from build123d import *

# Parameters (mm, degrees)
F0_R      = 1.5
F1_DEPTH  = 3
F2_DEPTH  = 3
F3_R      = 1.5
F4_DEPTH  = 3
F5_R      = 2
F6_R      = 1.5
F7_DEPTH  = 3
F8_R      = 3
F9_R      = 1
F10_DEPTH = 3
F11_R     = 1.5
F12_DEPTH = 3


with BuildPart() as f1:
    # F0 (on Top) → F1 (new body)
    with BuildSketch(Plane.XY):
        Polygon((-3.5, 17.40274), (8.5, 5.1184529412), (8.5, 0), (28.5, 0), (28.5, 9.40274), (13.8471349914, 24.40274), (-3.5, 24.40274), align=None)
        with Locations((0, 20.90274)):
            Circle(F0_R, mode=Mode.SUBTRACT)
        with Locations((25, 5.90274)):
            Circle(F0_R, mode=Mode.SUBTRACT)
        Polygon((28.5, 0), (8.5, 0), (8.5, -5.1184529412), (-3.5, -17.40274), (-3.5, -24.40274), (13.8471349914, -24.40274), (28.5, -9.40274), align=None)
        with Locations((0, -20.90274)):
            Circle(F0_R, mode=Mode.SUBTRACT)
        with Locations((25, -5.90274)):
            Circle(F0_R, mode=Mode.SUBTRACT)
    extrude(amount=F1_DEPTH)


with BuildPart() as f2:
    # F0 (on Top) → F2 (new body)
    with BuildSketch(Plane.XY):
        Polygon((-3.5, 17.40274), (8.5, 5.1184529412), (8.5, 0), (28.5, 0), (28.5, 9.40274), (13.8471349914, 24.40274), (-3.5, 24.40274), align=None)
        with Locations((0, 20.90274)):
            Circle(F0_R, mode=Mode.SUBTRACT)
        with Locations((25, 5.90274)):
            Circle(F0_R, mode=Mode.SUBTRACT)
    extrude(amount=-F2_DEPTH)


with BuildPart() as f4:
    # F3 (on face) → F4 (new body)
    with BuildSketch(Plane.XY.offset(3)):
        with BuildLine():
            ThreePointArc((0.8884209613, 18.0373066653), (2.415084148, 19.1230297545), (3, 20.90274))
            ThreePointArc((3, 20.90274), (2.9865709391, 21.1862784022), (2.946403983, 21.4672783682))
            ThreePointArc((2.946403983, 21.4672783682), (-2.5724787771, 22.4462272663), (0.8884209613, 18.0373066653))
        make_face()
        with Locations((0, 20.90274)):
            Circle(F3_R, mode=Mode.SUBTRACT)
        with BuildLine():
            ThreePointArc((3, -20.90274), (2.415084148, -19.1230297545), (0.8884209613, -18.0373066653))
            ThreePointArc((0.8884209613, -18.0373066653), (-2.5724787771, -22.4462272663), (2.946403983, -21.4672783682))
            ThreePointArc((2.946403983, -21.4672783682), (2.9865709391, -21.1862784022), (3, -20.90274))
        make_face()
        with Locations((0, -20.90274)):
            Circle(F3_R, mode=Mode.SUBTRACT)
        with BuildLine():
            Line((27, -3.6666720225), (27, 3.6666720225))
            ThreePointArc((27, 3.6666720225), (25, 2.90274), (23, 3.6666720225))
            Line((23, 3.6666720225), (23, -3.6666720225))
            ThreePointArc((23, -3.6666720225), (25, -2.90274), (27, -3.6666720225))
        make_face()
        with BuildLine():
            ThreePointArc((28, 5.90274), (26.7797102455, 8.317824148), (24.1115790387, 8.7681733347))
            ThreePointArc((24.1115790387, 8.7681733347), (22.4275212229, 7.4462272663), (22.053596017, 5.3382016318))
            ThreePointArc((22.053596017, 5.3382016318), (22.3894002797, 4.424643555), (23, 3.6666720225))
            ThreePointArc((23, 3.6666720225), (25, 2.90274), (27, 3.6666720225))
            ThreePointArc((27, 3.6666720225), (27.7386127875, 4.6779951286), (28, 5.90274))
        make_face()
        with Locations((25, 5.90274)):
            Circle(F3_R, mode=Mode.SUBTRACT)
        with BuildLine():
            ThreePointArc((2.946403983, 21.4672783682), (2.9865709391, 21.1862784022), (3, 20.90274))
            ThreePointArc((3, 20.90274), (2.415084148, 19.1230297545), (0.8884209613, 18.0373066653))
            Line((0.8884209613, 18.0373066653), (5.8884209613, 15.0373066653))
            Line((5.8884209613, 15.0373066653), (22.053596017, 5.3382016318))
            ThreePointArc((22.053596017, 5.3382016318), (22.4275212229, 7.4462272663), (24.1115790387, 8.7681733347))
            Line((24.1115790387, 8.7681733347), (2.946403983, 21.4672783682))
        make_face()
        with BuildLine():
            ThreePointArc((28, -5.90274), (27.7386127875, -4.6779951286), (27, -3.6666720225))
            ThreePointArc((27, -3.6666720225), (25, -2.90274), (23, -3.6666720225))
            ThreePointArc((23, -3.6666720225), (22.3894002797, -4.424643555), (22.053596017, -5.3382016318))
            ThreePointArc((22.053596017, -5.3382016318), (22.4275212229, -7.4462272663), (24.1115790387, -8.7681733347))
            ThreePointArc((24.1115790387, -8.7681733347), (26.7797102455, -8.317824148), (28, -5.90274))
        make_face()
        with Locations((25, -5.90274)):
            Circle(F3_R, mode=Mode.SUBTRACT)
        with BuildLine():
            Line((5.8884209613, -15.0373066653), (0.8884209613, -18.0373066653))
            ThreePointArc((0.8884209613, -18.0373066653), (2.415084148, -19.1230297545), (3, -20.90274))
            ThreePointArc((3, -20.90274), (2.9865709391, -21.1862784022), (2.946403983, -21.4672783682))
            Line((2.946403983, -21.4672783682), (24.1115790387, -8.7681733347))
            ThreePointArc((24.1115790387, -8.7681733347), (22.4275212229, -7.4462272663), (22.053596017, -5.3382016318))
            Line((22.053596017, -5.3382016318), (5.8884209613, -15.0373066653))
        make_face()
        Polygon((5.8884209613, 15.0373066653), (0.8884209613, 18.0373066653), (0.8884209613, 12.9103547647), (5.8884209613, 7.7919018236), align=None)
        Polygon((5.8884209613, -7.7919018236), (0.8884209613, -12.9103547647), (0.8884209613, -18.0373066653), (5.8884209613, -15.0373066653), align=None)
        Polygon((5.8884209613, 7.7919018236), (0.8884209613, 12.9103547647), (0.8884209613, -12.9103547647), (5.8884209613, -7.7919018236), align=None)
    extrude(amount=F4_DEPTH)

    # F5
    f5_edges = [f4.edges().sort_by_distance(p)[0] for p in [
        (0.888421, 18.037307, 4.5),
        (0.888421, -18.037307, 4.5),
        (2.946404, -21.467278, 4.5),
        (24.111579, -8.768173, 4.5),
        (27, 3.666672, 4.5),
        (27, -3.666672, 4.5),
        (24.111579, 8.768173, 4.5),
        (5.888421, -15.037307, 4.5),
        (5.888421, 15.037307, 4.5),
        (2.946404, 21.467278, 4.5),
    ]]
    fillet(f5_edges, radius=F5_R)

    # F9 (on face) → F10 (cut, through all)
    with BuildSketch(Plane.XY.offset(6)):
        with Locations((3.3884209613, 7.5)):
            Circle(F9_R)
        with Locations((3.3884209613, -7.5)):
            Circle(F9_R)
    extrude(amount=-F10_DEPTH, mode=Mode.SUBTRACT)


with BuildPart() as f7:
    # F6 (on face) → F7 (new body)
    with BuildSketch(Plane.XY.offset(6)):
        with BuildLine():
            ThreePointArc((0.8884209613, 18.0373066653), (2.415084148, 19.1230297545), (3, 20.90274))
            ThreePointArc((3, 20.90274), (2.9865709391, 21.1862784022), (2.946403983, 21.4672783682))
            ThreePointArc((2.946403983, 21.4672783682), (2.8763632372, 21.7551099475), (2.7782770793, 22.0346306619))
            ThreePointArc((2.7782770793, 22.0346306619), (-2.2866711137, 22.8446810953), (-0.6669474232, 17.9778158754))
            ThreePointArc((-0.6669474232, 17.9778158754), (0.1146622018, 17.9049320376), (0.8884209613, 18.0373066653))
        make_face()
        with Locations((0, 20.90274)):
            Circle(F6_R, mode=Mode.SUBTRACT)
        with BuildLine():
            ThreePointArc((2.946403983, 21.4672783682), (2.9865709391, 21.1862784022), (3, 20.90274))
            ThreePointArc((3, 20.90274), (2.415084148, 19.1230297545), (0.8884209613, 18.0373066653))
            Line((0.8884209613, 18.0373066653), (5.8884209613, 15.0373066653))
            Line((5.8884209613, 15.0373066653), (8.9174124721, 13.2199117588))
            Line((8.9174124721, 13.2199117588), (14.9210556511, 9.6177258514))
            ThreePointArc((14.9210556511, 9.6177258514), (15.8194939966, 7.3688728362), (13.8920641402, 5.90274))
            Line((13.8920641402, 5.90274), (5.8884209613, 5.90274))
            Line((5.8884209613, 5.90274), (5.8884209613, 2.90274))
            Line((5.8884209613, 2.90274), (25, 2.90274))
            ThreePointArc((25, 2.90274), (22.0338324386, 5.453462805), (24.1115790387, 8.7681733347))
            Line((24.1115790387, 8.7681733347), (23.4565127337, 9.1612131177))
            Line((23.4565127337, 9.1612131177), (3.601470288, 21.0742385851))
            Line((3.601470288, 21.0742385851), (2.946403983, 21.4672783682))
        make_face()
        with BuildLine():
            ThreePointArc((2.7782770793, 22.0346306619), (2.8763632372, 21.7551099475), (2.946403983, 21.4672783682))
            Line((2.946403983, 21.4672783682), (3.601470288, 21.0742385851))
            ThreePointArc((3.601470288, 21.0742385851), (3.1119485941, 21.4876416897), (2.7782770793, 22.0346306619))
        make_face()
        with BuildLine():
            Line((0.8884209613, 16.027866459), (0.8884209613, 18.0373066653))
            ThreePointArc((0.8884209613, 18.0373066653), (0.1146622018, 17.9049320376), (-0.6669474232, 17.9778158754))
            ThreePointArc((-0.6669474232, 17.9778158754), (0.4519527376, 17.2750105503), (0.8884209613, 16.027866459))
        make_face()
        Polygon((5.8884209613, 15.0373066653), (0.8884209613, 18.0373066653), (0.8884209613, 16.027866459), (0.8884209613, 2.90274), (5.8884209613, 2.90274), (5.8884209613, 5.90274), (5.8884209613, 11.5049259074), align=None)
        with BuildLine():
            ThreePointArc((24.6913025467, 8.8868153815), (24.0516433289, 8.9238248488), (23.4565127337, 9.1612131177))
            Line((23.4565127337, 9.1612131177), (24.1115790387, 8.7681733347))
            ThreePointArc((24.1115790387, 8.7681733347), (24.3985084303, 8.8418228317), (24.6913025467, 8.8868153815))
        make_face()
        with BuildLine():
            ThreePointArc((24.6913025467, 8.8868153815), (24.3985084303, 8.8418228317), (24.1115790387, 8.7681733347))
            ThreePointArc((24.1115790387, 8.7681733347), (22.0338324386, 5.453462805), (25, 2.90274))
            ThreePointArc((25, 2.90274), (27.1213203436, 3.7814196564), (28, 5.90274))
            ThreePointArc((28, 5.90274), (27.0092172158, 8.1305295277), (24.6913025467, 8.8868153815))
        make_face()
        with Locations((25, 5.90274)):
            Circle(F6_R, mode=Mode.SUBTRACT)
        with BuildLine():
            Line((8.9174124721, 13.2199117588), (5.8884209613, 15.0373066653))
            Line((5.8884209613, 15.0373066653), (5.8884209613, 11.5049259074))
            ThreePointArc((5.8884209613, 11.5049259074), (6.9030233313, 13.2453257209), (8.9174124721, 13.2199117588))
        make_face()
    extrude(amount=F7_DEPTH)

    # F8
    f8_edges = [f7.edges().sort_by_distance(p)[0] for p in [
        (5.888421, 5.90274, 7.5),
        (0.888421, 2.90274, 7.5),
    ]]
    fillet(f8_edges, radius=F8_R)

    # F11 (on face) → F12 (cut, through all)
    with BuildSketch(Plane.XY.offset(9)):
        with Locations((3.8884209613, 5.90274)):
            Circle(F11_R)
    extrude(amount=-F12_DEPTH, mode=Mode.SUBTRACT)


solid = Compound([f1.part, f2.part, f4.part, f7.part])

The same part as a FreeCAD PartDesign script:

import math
import FreeCAD as App
import Part
import Sketcher
from FreeCAD import Vector


def edges_at(feature, points):
    """Names of the edges that pass closest to the given points."""
    edges = feature.Shape.Edges
    near = lambda p: min(range(len(edges)), key=lambda i: edges[i].distToShape(Part.Vertex(*p))[0])
    return sorted({f"Edge{near(p) + 1}" for p in points})

doc = App.newDocument("Part")
params = doc.addObject("Spreadsheet::Sheet", "Params")
for row, (alias, value) in enumerate([
    ("sketch1_diameter", "3 mm"),
    ("sketch1_height", "7 mm"),
    ("pad1_length", "3 mm"),
    ("sketch2_diameter", "3 mm"),
    ("sketch2_width", "20 mm"),
    ("sketch2_height", "7 mm"),
    ("pad2_length", "3 mm"),
    ("sketch3_diameter", "3 mm"),
    ("sketch3_radius", "3 mm"),
    ("pad3_length", "3 mm"),
    ("fillet_radius", "2 mm"),
    ("sketch4_diameter", "2 mm"),
    ("sketch5_diameter", "3 mm"),
    ("sketch5_radius", "2 mm"),
    ("sketch5_radius2", "3 mm"),
    ("pad4_length", "3 mm"),
    ("fillet2_radius", "3 mm"),
    ("sketch6_diameter", "3 mm"),
], start=1):
    params.set(f"A{row}", alias)
    params.set(f"B{row}", "=" + value)
    params.setAlias(f"B{row}", alias)

body = doc.addObject("PartDesign::Body", "Body")

# Sketch on XY plane
sketch1 = body.newObject("Sketcher::SketchObject", "Sketch")
sketch1.AttachmentSupport = (doc.getObject("XY_Plane"), [""])
sketch1.MapMode = "FlatFace"
sketch1.addGeometry(Part.LineSegment(Vector(-3.5, 17.40274, 0), Vector(8.5, 5.118453, 0)), False)
sketch1.addGeometry(Part.LineSegment(Vector(8.5, 5.118453, 0), Vector(8.5, -5.118453, 0)), False)
sketch1.addGeometry(Part.LineSegment(Vector(8.5, -5.118453, 0), Vector(-3.5, -17.40274, 0)), False)
sketch1.addGeometry(Part.LineSegment(Vector(-3.5, -17.40274, 0), Vector(-3.5, -24.40274, 0)), False)
sketch1.addGeometry(Part.LineSegment(Vector(-3.5, -24.40274, 0), Vector(13.847135, -24.40274, 0)), False)
sketch1.addGeometry(Part.LineSegment(Vector(13.847135, -24.40274, 0), Vector(28.5, -9.40274, 0)), False)
sketch1.addGeometry(Part.LineSegment(Vector(28.5, -9.40274, 0), Vector(28.5, 9.40274, 0)), False)
sketch1.addGeometry(Part.LineSegment(Vector(28.5, 9.40274, 0), Vector(13.847135, 24.40274, 0)), False)
sketch1.addGeometry(Part.LineSegment(Vector(13.847135, 24.40274, 0), Vector(-3.5, 24.40274, 0)), False)
sketch1.addGeometry(Part.LineSegment(Vector(-3.5, 24.40274, 0), Vector(-3.5, 17.40274, 0)), False)
sketch1.addGeometry(Part.Circle(Vector(0, -20.90274, 0), Vector(0, 0, 1), 1.5), False)
sketch1.addGeometry(Part.Circle(Vector(25, -5.90274, 0), Vector(0, 0, 1), 1.5), False)
sketch1.addGeometry(Part.Circle(Vector(0, 20.90274, 0), Vector(0, 0, 1), 1.5), False)
sketch1.addGeometry(Part.Circle(Vector(25, 5.90274, 0), Vector(0, 0, 1), 1.5), False)
sketch1.addConstraint(Sketcher.Constraint("Coincident", 0, 2, 1, 1))
sketch1.addConstraint(Sketcher.Constraint("Coincident", 1, 2, 2, 1))
sketch1.addConstraint(Sketcher.Constraint("Coincident", 2, 2, 3, 1))
sketch1.addConstraint(Sketcher.Constraint("Coincident", 3, 2, 4, 1))
sketch1.addConstraint(Sketcher.Constraint("Coincident", 4, 2, 5, 1))
sketch1.addConstraint(Sketcher.Constraint("Coincident", 5, 2, 6, 1))
sketch1.addConstraint(Sketcher.Constraint("Coincident", 6, 2, 7, 1))
sketch1.addConstraint(Sketcher.Constraint("Coincident", 7, 2, 8, 1))
sketch1.addConstraint(Sketcher.Constraint("Coincident", 8, 2, 9, 1))
sketch1.addConstraint(Sketcher.Constraint("Coincident", 9, 2, 0, 1))
sketch1.addConstraint(Sketcher.Constraint("Vertical", 1))
sketch1.addConstraint(Sketcher.Constraint("Vertical", 3))
sketch1.addConstraint(Sketcher.Constraint("Horizontal", 4))
sketch1.addConstraint(Sketcher.Constraint("Vertical", 6))
sketch1.addConstraint(Sketcher.Constraint("Horizontal", 8))
sketch1.addConstraint(Sketcher.Constraint("Vertical", 9))
sketch1.addConstraint(Sketcher.Constraint("Equal", 10, 11))
sketch1.addConstraint(Sketcher.Constraint("Equal", 11, 12))
sketch1.addConstraint(Sketcher.Constraint("Equal", 12, 13))
sketch1.addConstraint(Sketcher.Constraint("Symmetric", 10, 3, 12, 3, -1, 1))
sketch1.addConstraint(Sketcher.Constraint("Symmetric", 11, 3, 13, 3, -1))
sketch1.addConstraint(Sketcher.Constraint("Symmetric", 4, 2, 7, 2, -1))
sketch1.addConstraint(Sketcher.Constraint("Symmetric", 2, 2, 9, 2, -1))
sketch1.addConstraint(Sketcher.Constraint("PointOnObject", 10, 3, -2))
sketch1.addConstraint(Sketcher.Constraint("Parallel", 2, 5))
sketch1.addConstraint(Sketcher.Constraint("Parallel", 0, 7))
sketch1.addConstraint(Sketcher.Constraint("Equal", 0, 2))
sketch1.addConstraint(Sketcher.Constraint("Diameter", 10, 3.0))
sketch1.addConstraint(Sketcher.Constraint("DistanceY", 3, 2, 3, 1, 7.0))
sketch1.addConstraint(Sketcher.Constraint("DistanceX", -1, 1, 11, 3, 25.0))
sketch1.addConstraint(Sketcher.Constraint("DistanceY", 10, 3, 11, 3, 15.0))
sketch1.addConstraint(Sketcher.Constraint("DistanceX", 2, 2, 1, 2, 12.0))
sketch1.addConstraint(Sketcher.Constraint("DistanceX", 1, 2, 5, 2, 20.0))
sketch1.addConstraint(Sketcher.Constraint("DistanceY", 4, 2, 5, 2, 15.0))
sketch1.addConstraint(Sketcher.Constraint("DistanceX", -1, 1, 0, 2, 8.5))
sketch1.addConstraint(Sketcher.Constraint("DistanceY", 10, 3, 2, 2, 3.5))
sketch1.addConstraint(Sketcher.Constraint("DistanceY", 6, 1, 6, 2, 18.80548))
sketch1.addConstraint(Sketcher.Constraint("Distance", 0, 17.172761))
sketch1.setExpression("Constraints[27]", "Params.sketch1_diameter")
sketch1.setExpression("Constraints[28]", "Params.sketch1_height")
pad1 = body.newObject("PartDesign::Pad", "Pad")
pad1.Profile = sketch1
pad1.setExpression("Length", "Params.pad1_length")
body2 = doc.addObject("PartDesign::Body", "Body001")

# Sketch on XY plane
sketch2 = body2.newObject("Sketcher::SketchObject", "Sketch001")
sketch2.AttachmentSupport = (doc.getObject("XY_Plane001"), [""])
sketch2.MapMode = "FlatFace"
sketch2.addGeometry(Part.LineSegment(Vector(-3.5, 17.40274, 0), Vector(8.5, 5.118453, 0)), False)
sketch2.addGeometry(Part.LineSegment(Vector(8.5, 5.118453, 0), Vector(8.5, 0, 0)), False)
sketch2.addGeometry(Part.LineSegment(Vector(8.5, 0, 0), Vector(28.5, 0, 0)), False)
sketch2.addGeometry(Part.LineSegment(Vector(28.5, 0, 0), Vector(28.5, 9.40274, 0)), False)
sketch2.addGeometry(Part.LineSegment(Vector(28.5, 9.40274, 0), Vector(13.847135, 24.40274, 0)), False)
sketch2.addGeometry(Part.LineSegment(Vector(13.847135, 24.40274, 0), Vector(-3.5, 24.40274, 0)), False)
sketch2.addGeometry(Part.LineSegment(Vector(-3.5, 24.40274, 0), Vector(-3.5, 17.40274, 0)), False)
sketch2.addGeometry(Part.Circle(Vector(25, 5.90274, 0), Vector(0, 0, 1), 1.5), False)
sketch2.addGeometry(Part.Circle(Vector(0, 20.90274, 0), Vector(0, 0, 1), 1.5), False)
sketch2.addConstraint(Sketcher.Constraint("Coincident", 0, 2, 1, 1))
sketch2.addConstraint(Sketcher.Constraint("Coincident", 1, 2, 2, 1))
sketch2.addConstraint(Sketcher.Constraint("Coincident", 2, 2, 3, 1))
sketch2.addConstraint(Sketcher.Constraint("Coincident", 3, 2, 4, 1))
sketch2.addConstraint(Sketcher.Constraint("Coincident", 4, 2, 5, 1))
sketch2.addConstraint(Sketcher.Constraint("Coincident", 5, 2, 6, 1))
sketch2.addConstraint(Sketcher.Constraint("Coincident", 6, 2, 0, 1))
sketch2.addConstraint(Sketcher.Constraint("Vertical", 1))
sketch2.addConstraint(Sketcher.Constraint("Horizontal", 2))
sketch2.addConstraint(Sketcher.Constraint("Vertical", 3))
sketch2.addConstraint(Sketcher.Constraint("Horizontal", 5))
sketch2.addConstraint(Sketcher.Constraint("Vertical", 6))
sketch2.addConstraint(Sketcher.Constraint("Equal", 7, 8))
sketch2.addConstraint(Sketcher.Constraint("PointOnObject", 8, 3, -2))
sketch2.addConstraint(Sketcher.Constraint("PointOnObject", 1, 2, -1))
sketch2.addConstraint(Sketcher.Constraint("Parallel", 0, 4))
sketch2.addConstraint(Sketcher.Constraint("Diameter", 7, 3.0))
sketch2.addConstraint(Sketcher.Constraint("DistanceX", 2, 1, 2, 2, 20.0))
sketch2.addConstraint(Sketcher.Constraint("DistanceY", 6, 2, 6, 1, 7.0))
sketch2.addConstraint(Sketcher.Constraint("DistanceX", -1, 1, 7, 3, 25.0))
sketch2.addConstraint(Sketcher.Constraint("DistanceY", 7, 3, 8, 3, 15.0))
sketch2.addConstraint(Sketcher.Constraint("DistanceY", 3, 2, 4, 2, 15.0))
sketch2.addConstraint(Sketcher.Constraint("DistanceX", 5, 2, 0, 2, 12.0))
sketch2.addConstraint(Sketcher.Constraint("DistanceX", -1, 1, 0, 2, 8.5))
sketch2.addConstraint(Sketcher.Constraint("DistanceY", 7, 3, 3, 2, 3.5))
sketch2.addConstraint(Sketcher.Constraint("DistanceY", 3, 1, 3, 2, 9.40274))
sketch2.addConstraint(Sketcher.Constraint("Distance", 0, 17.172761))
sketch2.setExpression("Constraints[16]", "Params.sketch2_diameter")
sketch2.setExpression("Constraints[17]", "Params.sketch2_width")
sketch2.setExpression("Constraints[18]", "Params.sketch2_height")
pad2 = body2.newObject("PartDesign::Pad", "Pad001")
pad2.Profile = sketch2
pad2.setExpression("Length", "Params.pad2_length")
pad2.Reversed = True
body3 = doc.addObject("PartDesign::Body", "Body002")

# Sketch on XY plane
sketch3 = body3.newObject("Sketcher::SketchObject", "Sketch002")
sketch3.AttachmentSupport = (doc.getObject("XY_Plane002"), [""])
sketch3.MapMode = "FlatFace"
sketch3.AttachmentOffset = App.Placement(Vector(0, 0, 3), App.Rotation())
sketch3.addGeometry(Part.ArcOfCircle(Part.Circle(Vector(0, 20.90274, 0), Vector(0, 0, 1), 3), math.radians(10.846558), math.radians(287.225929)), False)
sketch3.addGeometry(Part.LineSegment(Vector(0.888421, 18.037307, 0), Vector(0.888421, -18.037307, 0)), False)
sketch3.addGeometry(Part.ArcOfCircle(Part.Circle(Vector(0, -20.90274, 0), Vector(0, 0, 1), 3), math.radians(72.774071), math.radians(349.153442)), False)
sketch3.addGeometry(Part.LineSegment(Vector(2.946404, -21.467278, 0), Vector(24.111579, -8.768173, 0)), False)
sketch3.addGeometry(Part.ArcOfCircle(Part.Circle(Vector(25, -5.90274, 0), Vector(0, 0, 1), 3), math.radians(-107.225929), math.radians(0)), False)
sketch3.addGeometry(Part.ArcOfCircle(Part.Circle(Vector(25, -5.90274, 0), Vector(0, 0, 1), 3), math.radians(0), math.radians(48.189685)), False)
sketch3.addGeometry(Part.LineSegment(Vector(27, -3.666672, 0), Vector(27, 3.666672, 0)), False)
sketch3.addGeometry(Part.ArcOfCircle(Part.Circle(Vector(25, 5.90274, 0), Vector(0, 0, 1), 3), math.radians(-48.189685), math.radians(0)), False)
sketch3.addGeometry(Part.ArcOfCircle(Part.Circle(Vector(25, 5.90274, 0), Vector(0, 0, 1), 3), math.radians(0), math.radians(107.225929)), False)
sketch3.addGeometry(Part.LineSegment(Vector(24.111579, 8.768173, 0), Vector(2.946404, 21.467278, 0)), False)
sketch3.addGeometry(Part.LineSegment(Vector(5.888421, 15.037307, 0), Vector(22.053596, 5.338202, 0)), False)
sketch3.addGeometry(Part.ArcOfCircle(Part.Circle(Vector(25, 5.90274, 0), Vector(0, 0, 1), 3), math.radians(-169.153442), math.radians(-131.810315)), False)
sketch3.addGeometry(Part.LineSegment(Vector(23, 3.666672, 0), Vector(23, -3.666672, 0)), False)
sketch3.addGeometry(Part.ArcOfCircle(Part.Circle(Vector(25, -5.90274, 0), Vector(0, 0, 1), 3), math.radians(131.810315), math.radians(169.153442)), False)
sketch3.addGeometry(Part.LineSegment(Vector(22.053596, -5.338202, 0), Vector(5.888421, -15.037307, 0)), False)
sketch3.addGeometry(Part.LineSegment(Vector(5.888421, -15.037307, 0), Vector(5.888421, 15.037307, 0)), False)
sketch3.addGeometry(Part.Circle(Vector(25, -5.90274, 0), Vector(0, 0, 1), 1.5), False)
sketch3.addGeometry(Part.Circle(Vector(25, 5.90274, 0), Vector(0, 0, 1), 1.5), False)
sketch3.addGeometry(Part.Circle(Vector(0, 20.90274, 0), Vector(0, 0, 1), 1.5), False)
sketch3.addGeometry(Part.Circle(Vector(0, -20.90274, 0), Vector(0, 0, 1), 1.5), False)
sketch3.addConstraint(Sketcher.Constraint("Coincident", 0, 2, 1, 1))
sketch3.addConstraint(Sketcher.Constraint("Coincident", 1, 2, 2, 1))
sketch3.addConstraint(Sketcher.Constraint("Coincident", 2, 2, 3, 1))
sketch3.addConstraint(Sketcher.Constraint("Coincident", 3, 2, 4, 1))
sketch3.addConstraint(Sketcher.Constraint("Tangent", 4, 2, 5, 1))
sketch3.addConstraint(Sketcher.Constraint("Coincident", 5, 2, 6, 1))
sketch3.addConstraint(Sketcher.Constraint("Coincident", 6, 2, 7, 1))
sketch3.addConstraint(Sketcher.Constraint("Tangent", 7, 2, 8, 1))
sketch3.addConstraint(Sketcher.Constraint("Coincident", 8, 2, 9, 1))
sketch3.addConstraint(Sketcher.Constraint("Coincident", 9, 2, 0, 1))
sketch3.addConstraint(Sketcher.Constraint("Coincident", 10, 2, 11, 1))
sketch3.addConstraint(Sketcher.Constraint("Coincident", 11, 2, 12, 1))
sketch3.addConstraint(Sketcher.Constraint("Coincident", 12, 2, 13, 1))
sketch3.addConstraint(Sketcher.Constraint("Coincident", 13, 2, 14, 1))
sketch3.addConstraint(Sketcher.Constraint("Coincident", 14, 2, 15, 1))
sketch3.addConstraint(Sketcher.Constraint("Coincident", 15, 2, 10, 1))
sketch3.addConstraint(Sketcher.Constraint("Vertical", 1))
sketch3.addConstraint(Sketcher.Constraint("Vertical", 6))
sketch3.addConstraint(Sketcher.Constraint("Vertical", 12))
sketch3.addConstraint(Sketcher.Constraint("Vertical", 15))
sketch3.addConstraint(Sketcher.Constraint("Coincident", 11, 3, 7, 3))
sketch3.addConstraint(Sketcher.Constraint("Coincident", 13, 3, 4, 3))
sketch3.addConstraint(Sketcher.Constraint("Coincident", 16, 3, 4, 3))
sketch3.addConstraint(Sketcher.Constraint("Coincident", 17, 3, 7, 3))
sketch3.addConstraint(Sketcher.Constraint("Coincident", 18, 3, 0, 3))
sketch3.addConstraint(Sketcher.Constraint("Coincident", 19, 3, 2, 3))
sketch3.addConstraint(Sketcher.Constraint("Equal", 0, 2))
sketch3.addConstraint(Sketcher.Constraint("Equal", 2, 4))
sketch3.addConstraint(Sketcher.Constraint("Equal", 4, 5))
sketch3.addConstraint(Sketcher.Constraint("Equal", 5, 7))
sketch3.addConstraint(Sketcher.Constraint("Equal", 7, 8))
sketch3.addConstraint(Sketcher.Constraint("Equal", 8, 11))
sketch3.addConstraint(Sketcher.Constraint("Equal", 11, 13))
sketch3.addConstraint(Sketcher.Constraint("Equal", 16, 17))
sketch3.addConstraint(Sketcher.Constraint("Equal", 17, 18))
sketch3.addConstraint(Sketcher.Constraint("Equal", 18, 19))
sketch3.addConstraint(Sketcher.Constraint("Symmetric", 0, 3, 2, 3, -1, 1))
sketch3.addConstraint(Sketcher.Constraint("Symmetric", 4, 3, 7, 3, -1))
sketch3.addConstraint(Sketcher.Constraint("Symmetric", 2, 2, 9, 2, -1))
sketch3.addConstraint(Sketcher.Constraint("Parallel", 9, 10))
sketch3.addConstraint(Sketcher.Constraint("Parallel", 3, 14))
sketch3.addConstraint(Sketcher.Constraint("Horizontal", 16, 3, 4, 2))
sketch3.addConstraint(Sketcher.Constraint("Horizontal", 17, 3, 7, 2))
sketch3.addConstraint(Sketcher.Constraint("Horizontal", 6, 2, 11, 2))
sketch3.addConstraint(Sketcher.Constraint("Vertical", 3, 2, 8, 2))
sketch3.addConstraint(Sketcher.Constraint("Vertical", 10, 2, 13, 2))
sketch3.addConstraint(Sketcher.Constraint("Diameter", 16, 3.0))
sketch3.addConstraint(Sketcher.Constraint("Radius", 0, 3.0))
sketch3.addConstraint(Sketcher.Constraint("DistanceX", -1, 1, 4, 3, 25.0))
sketch3.addConstraint(Sketcher.Constraint("DistanceX", -1, 1, 5, 2, 27.0))
sketch3.addConstraint(Sketcher.Constraint("DistanceY", 2, 3, 4, 3, 15.0))
sketch3.addConstraint(Sketcher.Constraint("DistanceX", 1, 2, 14, 2, 5.0))
sketch3.addConstraint(Sketcher.Constraint("DistanceY", 1, 2, 14, 2, 3.0))
sketch3.addConstraint(Sketcher.Constraint("DistanceY", -1, 1, 10, 2, 5.338202))
sketch3.addConstraint(Sketcher.Constraint("Distance", 10, 18.851672))
sketch3.addConstraint(Sketcher.Constraint("DistanceY", 1, 2, 1, 1, 36.074613))
sketch3.addConstraint(Sketcher.Constraint("DistanceY", 2, 2, -1, 1, 21.467278))
sketch3.setExpression("Constraints[46]", "Params.sketch3_diameter")
sketch3.setExpression("Constraints[47]", "Params.sketch3_radius")
pad3 = body3.newObject("PartDesign::Pad", "Pad002")
pad3.Profile = sketch3
pad3.setExpression("Length", "Params.pad3_length")
doc.recompute()

fillet = body3.newObject("PartDesign::Fillet", "Fillet")
fillet.Base = (pad3, edges_at(pad3, [
    (0.888, 18.037, 4.5),
    (0.888, -18.037, 4.5),
    (2.946, -21.467, 4.5),
    (24.112, -8.768, 4.5),
    (27, 3.667, 4.5),
    (27, -3.667, 4.5),
    (24.112, 8.768, 4.5),
    (5.888, -15.037, 4.5),
    (5.888, 15.037, 4.5),
    (2.946, 21.467, 4.5),
]))
fillet.setExpression("Radius", "Params.fillet_radius")

# Sketch on XY plane
sketch4 = body3.newObject("Sketcher::SketchObject", "Sketch003")
sketch4.AttachmentSupport = (doc.getObject("XY_Plane002"), [""])
sketch4.MapMode = "FlatFace"
sketch4.AttachmentOffset = App.Placement(Vector(0, 0, 6), App.Rotation())
sketch4.addGeometry(Part.Circle(Vector(3.388421, 7.5, 0), Vector(0, 0, 1), 1), False)
sketch4.addGeometry(Part.Circle(Vector(3.388421, -7.5, 0), Vector(0, 0, 1), 1), False)
sketch4.addConstraint(Sketcher.Constraint("Equal", 0, 1))
sketch4.addConstraint(Sketcher.Constraint("Symmetric", 0, 3, 1, 3, -1))
sketch4.addConstraint(Sketcher.Constraint("Diameter", 0, 2.0))
sketch4.addConstraint(Sketcher.Constraint("DistanceY", 1, 3, 0, 3, 15.0))
sketch4.addConstraint(Sketcher.Constraint("DistanceX", -1, 1, 0, 3, 3.388421))
sketch4.setExpression("Constraints[2]", "Params.sketch4_diameter")
pocket1 = body3.newObject("PartDesign::Pocket", "Pocket")
pocket1.Profile = sketch4
pocket1.Type = "ThroughAll"
body4 = doc.addObject("PartDesign::Body", "Body003")

# Sketch on XY plane
sketch5 = body4.newObject("Sketcher::SketchObject", "Sketch004")
sketch5.AttachmentSupport = (doc.getObject("XY_Plane003"), [""])
sketch5.MapMode = "FlatFace"
sketch5.AttachmentOffset = App.Placement(Vector(0, 0, 6), App.Rotation())
sketch5.addGeometry(Part.ArcOfCircle(Part.Circle(Vector(24.485504, 10.876199, 0), Vector(0, 0, 1), 2), math.radians(-120.963757), math.radians(-84.093859)), False)
sketch5.addGeometry(Part.LineSegment(Vector(23.456513, 9.161213, 0), Vector(3.60147, 21.074239, 0)), False)
sketch5.addGeometry(Part.ArcOfCircle(Part.Circle(Vector(4.630462, 22.789224, 0), Vector(0, 0, 1), 2), math.radians(-157.833654), math.radians(-120.963757)), False)
sketch5.addGeometry(Part.ArcOfCircle(Part.Circle(Vector(0, 20.90274, 0), Vector(0, 0, 1), 3), math.radians(22.166346), math.radians(257.154912)), False)
sketch5.addGeometry(Part.ArcOfCircle(Part.Circle(Vector(-1.111579, 16.027866, 0), Vector(0, 0, 1), 2), math.radians(0), math.radians(77.154912)), False)
sketch5.addGeometry(Part.LineSegment(Vector(0.888421, 16.027866, 0), Vector(0.888421, 2.90274, 0)), False)
sketch5.addGeometry(Part.LineSegment(Vector(0.888421, 2.90274, 0), Vector(25, 2.90274, 0)), False)
sketch5.addGeometry(Part.ArcOfCircle(Part.Circle(Vector(25, 5.90274, 0), Vector(0, 0, 1), 3), math.radians(-90), math.radians(0)), False)
sketch5.addGeometry(Part.ArcOfCircle(Part.Circle(Vector(25, 5.90274, 0), Vector(0, 0, 1), 3), math.radians(0), math.radians(95.906141)), False)
sketch5.addGeometry(Part.LineSegment(Vector(5.888421, 5.90274, 0), Vector(5.888421, 11.504926, 0)), False)
sketch5.addGeometry(Part.ArcOfCircle(Part.Circle(Vector(7.888421, 11.504926, 0), Vector(0, 0, 1), 2), math.radians(59.036243), math.radians(180)), False)
sketch5.addGeometry(Part.LineSegment(Vector(8.917412, 13.219912, 0), Vector(14.921056, 9.617726, 0)), False)
sketch5.addGeometry(Part.ArcOfCircle(Part.Circle(Vector(13.892064, 7.90274, 0), Vector(0, 0, 1), 2), math.radians(-90), math.radians(59.036243)), False)
sketch5.addGeometry(Part.LineSegment(Vector(13.892064, 5.90274, 0), Vector(5.888421, 5.90274, 0)), False)
sketch5.addGeometry(Part.Circle(Vector(25, 5.90274, 0), Vector(0, 0, 1), 1.5), False)
sketch5.addGeometry(Part.Circle(Vector(0, 20.90274, 0), Vector(0, 0, 1), 1.5), False)
sketch5.addConstraint(Sketcher.Constraint("Tangent", 0, 1, 1, 1))
sketch5.addConstraint(Sketcher.Constraint("Tangent", 1, 2, 2, 2))
sketch5.addConstraint(Sketcher.Constraint("Tangent", 2, 1, 3, 1))
sketch5.addConstraint(Sketcher.Constraint("Tangent", 3, 2, 4, 2))
sketch5.addConstraint(Sketcher.Constraint("Tangent", 4, 1, 5, 1))
sketch5.addConstraint(Sketcher.Constraint("Coincident", 5, 2, 6, 1))
sketch5.addConstraint(Sketcher.Constraint("Tangent", 6, 2, 7, 1))
sketch5.addConstraint(Sketcher.Constraint("Tangent", 7, 2, 8, 1))
sketch5.addConstraint(Sketcher.Constraint("Tangent", 8, 2, 0, 2))
sketch5.addConstraint(Sketcher.Constraint("Tangent", 9, 2, 10, 2))
sketch5.addConstraint(Sketcher.Constraint("Tangent", 10, 1, 11, 1))
sketch5.addConstraint(Sketcher.Constraint("Tangent", 11, 2, 12, 2))
sketch5.addConstraint(Sketcher.Constraint("Tangent", 12, 1, 13, 1))
sketch5.addConstraint(Sketcher.Constraint("Coincident", 13, 2, 9, 1))
sketch5.addConstraint(Sketcher.Constraint("Vertical", 5))
sketch5.addConstraint(Sketcher.Constraint("Horizontal", 6))
sketch5.addConstraint(Sketcher.Constraint("Vertical", 9))
sketch5.addConstraint(Sketcher.Constraint("Horizontal", 13))
sketch5.addConstraint(Sketcher.Constraint("Coincident", 14, 3, 7, 3))
sketch5.addConstraint(Sketcher.Constraint("Coincident", 15, 3, 3, 3))
sketch5.addConstraint(Sketcher.Constraint("Equal", 0, 2))
sketch5.addConstraint(Sketcher.Constraint("Equal", 2, 4))
sketch5.addConstraint(Sketcher.Constraint("Equal", 3, 7))
sketch5.addConstraint(Sketcher.Constraint("Equal", 7, 8))
sketch5.addConstraint(Sketcher.Constraint("Equal", 4, 10))
sketch5.addConstraint(Sketcher.Constraint("Equal", 10, 12))
sketch5.addConstraint(Sketcher.Constraint("Equal", 14, 15))
sketch5.addConstraint(Sketcher.Constraint("PointOnObject", 3, 3, -2))
sketch5.addConstraint(Sketcher.Constraint("Parallel", 1, 11))
sketch5.addConstraint(Sketcher.Constraint("Horizontal", 14, 3, 7, 2))
sketch5.addConstraint(Sketcher.Constraint("Horizontal", 7, 2, 12, 1))
sketch5.addConstraint(Sketcher.Constraint("Diameter", 14, 3.0))
sketch5.addConstraint(Sketcher.Constraint("Radius", 0, 2.0))
sketch5.addConstraint(Sketcher.Constraint("Radius", 3, 3.0))
sketch5.addConstraint(Sketcher.Constraint("DistanceX", -1, 1, 7, 3, 25.0))
sketch5.addConstraint(Sketcher.Constraint("DistanceY", 7, 3, 3, 3, 15.0))
sketch5.addConstraint(Sketcher.Constraint("DistanceX", 4, 3, 10, 3, 9.0))
sketch5.addConstraint(Sketcher.Constraint("DistanceX", 6, 1, 6, 2, 24.111579))
sketch5.addConstraint(Sketcher.Constraint("DistanceY", -1, 1, 0, 3, 10.876199))
sketch5.addConstraint(Sketcher.Constraint("DistanceY", 10, 3, 2, 3, 11.284299))
sketch5.addConstraint(Sketcher.Constraint("DistanceY", 3, 3, 1, 2, 0.171499))
sketch5.addConstraint(Sketcher.Constraint("DistanceX", 0, 3, 8, 2, 0.205798))
sketch5.setExpression("Constraints[31]", "Params.sketch5_diameter")
sketch5.setExpression("Constraints[32]", "Params.sketch5_radius")
sketch5.setExpression("Constraints[33]", "Params.sketch5_radius2")
pad4 = body4.newObject("PartDesign::Pad", "Pad003")
pad4.Profile = sketch5
pad4.setExpression("Length", "Params.pad4_length")
doc.recompute()

fillet2 = body4.newObject("PartDesign::Fillet", "Fillet001")
fillet2.Base = (pad4, edges_at(pad4, [(5.888, 5.903, 7.5), (0.888, 2.903, 7.5)]))
fillet2.setExpression("Radius", "Params.fillet2_radius")

# Sketch on XY plane
sketch6 = body4.newObject("Sketcher::SketchObject", "Sketch005")
sketch6.AttachmentSupport = (doc.getObject("XY_Plane003"), [""])
sketch6.MapMode = "FlatFace"
sketch6.AttachmentOffset = App.Placement(Vector(0, 0, 9), App.Rotation())
sketch6.addGeometry(Part.Circle(Vector(3.888421, 5.90274, 0), Vector(0, 0, 1), 1.5), False)
sketch6.addConstraint(Sketcher.Constraint("Diameter", 0, 3.0))
sketch6.addConstraint(Sketcher.Constraint("DistanceX", -1, 1, 0, 3, 3.888421))
sketch6.addConstraint(Sketcher.Constraint("DistanceY", -1, 1, 0, 3, 5.90274))
sketch6.setExpression("Constraints[0]", "Params.sketch6_diameter")
pocket2 = body4.newObject("PartDesign::Pocket", "Pocket001")
pocket2.Profile = sketch6
pocket2.Type = "ThroughAll"

doc.recompute()
